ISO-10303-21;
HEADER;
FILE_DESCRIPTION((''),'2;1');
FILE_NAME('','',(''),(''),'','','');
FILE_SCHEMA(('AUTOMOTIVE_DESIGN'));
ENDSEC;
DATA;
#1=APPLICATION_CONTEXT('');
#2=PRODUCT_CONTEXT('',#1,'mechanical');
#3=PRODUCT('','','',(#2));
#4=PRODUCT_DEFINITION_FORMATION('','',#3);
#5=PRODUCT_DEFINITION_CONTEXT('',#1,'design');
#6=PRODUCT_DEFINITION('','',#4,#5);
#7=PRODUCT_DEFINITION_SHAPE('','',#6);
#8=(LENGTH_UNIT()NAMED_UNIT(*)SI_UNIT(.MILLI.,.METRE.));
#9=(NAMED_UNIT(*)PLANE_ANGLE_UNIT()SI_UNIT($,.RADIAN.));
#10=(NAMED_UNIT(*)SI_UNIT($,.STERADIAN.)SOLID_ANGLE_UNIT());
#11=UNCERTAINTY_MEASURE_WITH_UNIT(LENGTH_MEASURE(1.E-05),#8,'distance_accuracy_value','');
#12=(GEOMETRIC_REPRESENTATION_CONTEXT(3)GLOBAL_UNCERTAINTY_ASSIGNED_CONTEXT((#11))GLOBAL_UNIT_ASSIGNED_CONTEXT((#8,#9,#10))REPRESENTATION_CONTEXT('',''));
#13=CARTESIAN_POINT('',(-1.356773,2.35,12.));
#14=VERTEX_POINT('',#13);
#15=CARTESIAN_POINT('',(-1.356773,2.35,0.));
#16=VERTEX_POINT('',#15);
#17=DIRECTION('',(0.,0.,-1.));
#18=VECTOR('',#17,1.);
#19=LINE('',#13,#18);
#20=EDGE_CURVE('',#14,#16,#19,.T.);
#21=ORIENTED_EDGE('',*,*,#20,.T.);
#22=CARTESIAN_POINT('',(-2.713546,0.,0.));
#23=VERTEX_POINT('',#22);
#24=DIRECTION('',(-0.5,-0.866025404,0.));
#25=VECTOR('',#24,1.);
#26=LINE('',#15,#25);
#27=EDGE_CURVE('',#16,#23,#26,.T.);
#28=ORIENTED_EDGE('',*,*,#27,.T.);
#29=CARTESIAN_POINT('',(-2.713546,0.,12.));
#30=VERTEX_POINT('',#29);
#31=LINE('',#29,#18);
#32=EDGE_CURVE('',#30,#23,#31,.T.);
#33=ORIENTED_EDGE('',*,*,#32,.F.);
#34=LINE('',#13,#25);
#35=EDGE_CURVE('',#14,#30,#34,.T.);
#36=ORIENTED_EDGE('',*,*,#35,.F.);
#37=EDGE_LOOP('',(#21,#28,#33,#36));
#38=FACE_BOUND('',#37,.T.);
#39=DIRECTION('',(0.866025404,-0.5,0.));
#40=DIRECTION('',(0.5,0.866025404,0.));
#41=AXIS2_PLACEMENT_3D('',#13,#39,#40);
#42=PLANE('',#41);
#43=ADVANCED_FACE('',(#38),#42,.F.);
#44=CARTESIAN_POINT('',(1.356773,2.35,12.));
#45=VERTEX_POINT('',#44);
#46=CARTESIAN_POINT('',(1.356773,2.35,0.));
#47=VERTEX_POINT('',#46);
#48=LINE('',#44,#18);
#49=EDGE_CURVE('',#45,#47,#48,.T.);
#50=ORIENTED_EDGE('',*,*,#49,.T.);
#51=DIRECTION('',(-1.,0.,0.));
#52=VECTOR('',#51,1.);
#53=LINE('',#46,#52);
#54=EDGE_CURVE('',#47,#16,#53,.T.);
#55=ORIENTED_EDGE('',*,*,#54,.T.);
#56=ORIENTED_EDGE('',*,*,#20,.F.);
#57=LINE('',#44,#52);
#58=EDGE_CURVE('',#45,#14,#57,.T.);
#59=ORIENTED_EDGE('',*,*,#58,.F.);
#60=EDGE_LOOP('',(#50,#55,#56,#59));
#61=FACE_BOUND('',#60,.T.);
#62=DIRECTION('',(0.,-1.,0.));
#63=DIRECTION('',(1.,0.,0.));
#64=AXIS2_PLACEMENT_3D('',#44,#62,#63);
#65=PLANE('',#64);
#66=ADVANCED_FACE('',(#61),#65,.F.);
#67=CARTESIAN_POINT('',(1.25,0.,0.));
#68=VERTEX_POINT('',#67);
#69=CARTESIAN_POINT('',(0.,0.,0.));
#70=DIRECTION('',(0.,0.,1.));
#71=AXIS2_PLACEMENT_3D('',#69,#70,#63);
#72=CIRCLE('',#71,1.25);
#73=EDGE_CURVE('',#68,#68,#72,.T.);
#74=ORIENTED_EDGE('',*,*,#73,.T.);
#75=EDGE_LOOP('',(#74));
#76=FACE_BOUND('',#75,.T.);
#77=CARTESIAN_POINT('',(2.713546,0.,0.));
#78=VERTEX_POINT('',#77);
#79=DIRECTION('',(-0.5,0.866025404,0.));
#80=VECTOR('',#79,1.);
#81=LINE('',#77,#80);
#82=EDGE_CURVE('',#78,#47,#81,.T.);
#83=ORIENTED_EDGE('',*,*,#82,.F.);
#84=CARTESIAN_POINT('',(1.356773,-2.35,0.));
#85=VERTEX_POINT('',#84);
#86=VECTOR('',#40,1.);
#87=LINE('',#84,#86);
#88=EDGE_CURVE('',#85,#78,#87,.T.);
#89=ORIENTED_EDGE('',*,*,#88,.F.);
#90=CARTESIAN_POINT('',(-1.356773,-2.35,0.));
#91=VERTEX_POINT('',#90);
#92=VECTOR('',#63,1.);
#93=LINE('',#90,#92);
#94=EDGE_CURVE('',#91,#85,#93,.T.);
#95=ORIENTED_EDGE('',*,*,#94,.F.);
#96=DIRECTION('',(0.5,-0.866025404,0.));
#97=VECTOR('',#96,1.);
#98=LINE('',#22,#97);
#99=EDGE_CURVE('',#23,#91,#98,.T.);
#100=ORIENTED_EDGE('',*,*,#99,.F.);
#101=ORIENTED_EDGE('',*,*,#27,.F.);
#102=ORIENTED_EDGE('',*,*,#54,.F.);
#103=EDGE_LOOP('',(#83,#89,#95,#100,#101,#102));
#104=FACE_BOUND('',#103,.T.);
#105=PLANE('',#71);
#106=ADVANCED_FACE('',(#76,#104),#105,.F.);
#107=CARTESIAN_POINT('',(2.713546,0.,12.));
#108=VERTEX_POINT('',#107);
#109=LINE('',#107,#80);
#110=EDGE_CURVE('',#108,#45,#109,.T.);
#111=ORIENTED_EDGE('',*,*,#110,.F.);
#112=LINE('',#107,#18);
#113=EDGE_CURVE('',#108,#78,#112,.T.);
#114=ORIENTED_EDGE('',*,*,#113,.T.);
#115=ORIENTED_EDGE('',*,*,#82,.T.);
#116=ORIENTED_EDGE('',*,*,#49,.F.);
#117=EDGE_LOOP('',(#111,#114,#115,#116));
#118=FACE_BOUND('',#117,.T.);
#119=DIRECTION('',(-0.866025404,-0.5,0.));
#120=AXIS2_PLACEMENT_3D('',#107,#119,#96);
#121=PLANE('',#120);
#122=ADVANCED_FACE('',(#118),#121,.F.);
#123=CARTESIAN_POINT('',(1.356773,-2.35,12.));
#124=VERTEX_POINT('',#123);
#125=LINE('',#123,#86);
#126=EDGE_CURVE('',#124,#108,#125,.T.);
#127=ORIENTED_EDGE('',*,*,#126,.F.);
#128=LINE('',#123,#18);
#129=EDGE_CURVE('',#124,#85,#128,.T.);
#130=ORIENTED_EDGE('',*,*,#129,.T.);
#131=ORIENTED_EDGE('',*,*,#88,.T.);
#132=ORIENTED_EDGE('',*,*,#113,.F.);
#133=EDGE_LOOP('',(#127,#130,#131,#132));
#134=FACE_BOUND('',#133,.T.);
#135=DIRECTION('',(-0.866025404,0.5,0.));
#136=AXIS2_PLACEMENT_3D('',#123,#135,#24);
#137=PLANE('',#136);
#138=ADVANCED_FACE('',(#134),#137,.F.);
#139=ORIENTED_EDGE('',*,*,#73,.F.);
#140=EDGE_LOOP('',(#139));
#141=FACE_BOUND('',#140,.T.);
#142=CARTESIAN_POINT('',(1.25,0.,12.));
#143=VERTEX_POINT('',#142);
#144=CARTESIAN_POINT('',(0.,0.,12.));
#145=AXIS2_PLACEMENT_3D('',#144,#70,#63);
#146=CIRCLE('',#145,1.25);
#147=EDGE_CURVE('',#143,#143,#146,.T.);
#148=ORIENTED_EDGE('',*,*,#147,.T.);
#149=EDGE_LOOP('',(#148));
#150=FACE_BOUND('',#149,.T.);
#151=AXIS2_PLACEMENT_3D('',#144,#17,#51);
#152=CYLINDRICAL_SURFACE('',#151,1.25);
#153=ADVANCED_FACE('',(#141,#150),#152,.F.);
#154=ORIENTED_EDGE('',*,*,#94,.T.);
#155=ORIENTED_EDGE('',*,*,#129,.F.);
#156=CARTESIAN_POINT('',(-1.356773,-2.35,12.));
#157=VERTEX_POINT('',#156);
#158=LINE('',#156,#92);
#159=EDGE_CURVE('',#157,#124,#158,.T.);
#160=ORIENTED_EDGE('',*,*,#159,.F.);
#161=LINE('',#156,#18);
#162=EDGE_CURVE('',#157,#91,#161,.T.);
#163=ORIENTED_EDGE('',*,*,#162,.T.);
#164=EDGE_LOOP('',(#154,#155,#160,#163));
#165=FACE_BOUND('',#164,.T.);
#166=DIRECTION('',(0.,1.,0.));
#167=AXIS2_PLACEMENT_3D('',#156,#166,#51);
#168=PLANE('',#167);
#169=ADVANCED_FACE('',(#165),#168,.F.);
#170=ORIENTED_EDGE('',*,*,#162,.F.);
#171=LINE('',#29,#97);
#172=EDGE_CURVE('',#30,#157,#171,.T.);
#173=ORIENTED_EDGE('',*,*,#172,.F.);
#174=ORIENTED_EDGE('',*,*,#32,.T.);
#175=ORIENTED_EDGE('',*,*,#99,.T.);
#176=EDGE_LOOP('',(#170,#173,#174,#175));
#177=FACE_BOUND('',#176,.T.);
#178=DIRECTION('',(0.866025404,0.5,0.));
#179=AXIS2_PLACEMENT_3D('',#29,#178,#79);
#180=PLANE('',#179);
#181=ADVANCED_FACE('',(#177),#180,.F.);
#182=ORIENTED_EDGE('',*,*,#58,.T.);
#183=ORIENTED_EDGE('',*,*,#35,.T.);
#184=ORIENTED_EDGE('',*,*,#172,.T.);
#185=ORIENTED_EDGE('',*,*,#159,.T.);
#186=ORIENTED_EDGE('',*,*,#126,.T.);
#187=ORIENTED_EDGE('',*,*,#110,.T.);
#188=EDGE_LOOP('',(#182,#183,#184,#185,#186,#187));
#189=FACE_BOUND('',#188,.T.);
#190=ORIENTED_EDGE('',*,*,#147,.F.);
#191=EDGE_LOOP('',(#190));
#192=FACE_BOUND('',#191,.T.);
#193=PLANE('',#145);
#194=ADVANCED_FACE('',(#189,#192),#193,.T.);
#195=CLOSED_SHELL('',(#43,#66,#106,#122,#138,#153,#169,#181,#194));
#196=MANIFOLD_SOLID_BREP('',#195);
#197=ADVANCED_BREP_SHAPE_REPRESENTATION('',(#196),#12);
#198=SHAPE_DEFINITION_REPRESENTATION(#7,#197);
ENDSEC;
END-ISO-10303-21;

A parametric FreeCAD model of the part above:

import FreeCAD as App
import Part
import Sketcher
from FreeCAD import Vector
Q = App.Units.Quantity

doc = App.newDocument("Part")
body = doc.addObject("PartDesign::Body", "Body")

# Sketch on XY plane
sketch1 = body.newObject("Sketcher::SketchObject", "Sketch")
sketch1.AttachmentSupport = (doc.getObject("XY_Plane"), [""])
sketch1.MapMode = "FlatFace"
sketch1.addGeometry([
    Part.LineSegment(Vector(2.713546, 0, 0), Vector(1.356773, 2.35, 0)),  # 0
    Part.LineSegment(Vector(1.356773, 2.35, 0), Vector(-1.356773, 2.35, 0)),  # 1
    Part.LineSegment(Vector(-1.356773, 2.35, 0), Vector(-2.713546, 0, 0)),  # 2
    Part.LineSegment(Vector(-2.713546, 0, 0), Vector(-1.356773, -2.35, 0)),  # 3
    Part.LineSegment(Vector(-1.356773, -2.35, 0), Vector(1.356773, -2.35, 0)),  # 4
    Part.LineSegment(Vector(1.356773, -2.35, 0), Vector(2.713546, 0, 0)),  # 5
    Part.Circle(Vector(0, 0, 0), Vector(0, 0, 1), 1.25),  # 6
], False)
sketch1.addConstraint([
    Sketcher.Constraint("Coincident", 0, 2, 1, 1),
    Sketcher.Constraint("Coincident", 1, 2, 2, 1),
    Sketcher.Constraint("Coincident", 2, 2, 3, 1),
    Sketcher.Constraint("Coincident", 3, 2, 4, 1),
    Sketcher.Constraint("Coincident", 4, 2, 5, 1),
    Sketcher.Constraint("Coincident", 5, 2, 0, 1),
    Sketcher.Constraint("Horizontal", 1),
    Sketcher.Constraint("Horizontal", 4),
    Sketcher.Constraint("Coincident", 6, 3, -1, 1),
    Sketcher.Constraint("Symmetric", 0, 2, 3, 2, -1, 1),
    Sketcher.Constraint("Symmetric", 2, 2, 5, 2, -1, 1),
    Sketcher.Constraint("PointOnObject", 2, 2, -1),
    Sketcher.Constraint("Parallel", 2, 5),
    Sketcher.Constraint("Vertical", 1, 2, 3, 2),
    Sketcher.Constraint("Diameter", 6, 2.5),
    Sketcher.Constraint("Angle", 0, Q("120 deg")),
    Sketcher.Constraint("DistanceY", 3, 2, 1, 2, 4.7),
    Sketcher.Constraint("DistanceX", 1, 2, 1, 1, 2.713546),
])
pad1 = body.newObject("PartDesign::Pad", "Pad")
pad1.Profile = sketch1
pad1.Length = 12

doc.recompute()
